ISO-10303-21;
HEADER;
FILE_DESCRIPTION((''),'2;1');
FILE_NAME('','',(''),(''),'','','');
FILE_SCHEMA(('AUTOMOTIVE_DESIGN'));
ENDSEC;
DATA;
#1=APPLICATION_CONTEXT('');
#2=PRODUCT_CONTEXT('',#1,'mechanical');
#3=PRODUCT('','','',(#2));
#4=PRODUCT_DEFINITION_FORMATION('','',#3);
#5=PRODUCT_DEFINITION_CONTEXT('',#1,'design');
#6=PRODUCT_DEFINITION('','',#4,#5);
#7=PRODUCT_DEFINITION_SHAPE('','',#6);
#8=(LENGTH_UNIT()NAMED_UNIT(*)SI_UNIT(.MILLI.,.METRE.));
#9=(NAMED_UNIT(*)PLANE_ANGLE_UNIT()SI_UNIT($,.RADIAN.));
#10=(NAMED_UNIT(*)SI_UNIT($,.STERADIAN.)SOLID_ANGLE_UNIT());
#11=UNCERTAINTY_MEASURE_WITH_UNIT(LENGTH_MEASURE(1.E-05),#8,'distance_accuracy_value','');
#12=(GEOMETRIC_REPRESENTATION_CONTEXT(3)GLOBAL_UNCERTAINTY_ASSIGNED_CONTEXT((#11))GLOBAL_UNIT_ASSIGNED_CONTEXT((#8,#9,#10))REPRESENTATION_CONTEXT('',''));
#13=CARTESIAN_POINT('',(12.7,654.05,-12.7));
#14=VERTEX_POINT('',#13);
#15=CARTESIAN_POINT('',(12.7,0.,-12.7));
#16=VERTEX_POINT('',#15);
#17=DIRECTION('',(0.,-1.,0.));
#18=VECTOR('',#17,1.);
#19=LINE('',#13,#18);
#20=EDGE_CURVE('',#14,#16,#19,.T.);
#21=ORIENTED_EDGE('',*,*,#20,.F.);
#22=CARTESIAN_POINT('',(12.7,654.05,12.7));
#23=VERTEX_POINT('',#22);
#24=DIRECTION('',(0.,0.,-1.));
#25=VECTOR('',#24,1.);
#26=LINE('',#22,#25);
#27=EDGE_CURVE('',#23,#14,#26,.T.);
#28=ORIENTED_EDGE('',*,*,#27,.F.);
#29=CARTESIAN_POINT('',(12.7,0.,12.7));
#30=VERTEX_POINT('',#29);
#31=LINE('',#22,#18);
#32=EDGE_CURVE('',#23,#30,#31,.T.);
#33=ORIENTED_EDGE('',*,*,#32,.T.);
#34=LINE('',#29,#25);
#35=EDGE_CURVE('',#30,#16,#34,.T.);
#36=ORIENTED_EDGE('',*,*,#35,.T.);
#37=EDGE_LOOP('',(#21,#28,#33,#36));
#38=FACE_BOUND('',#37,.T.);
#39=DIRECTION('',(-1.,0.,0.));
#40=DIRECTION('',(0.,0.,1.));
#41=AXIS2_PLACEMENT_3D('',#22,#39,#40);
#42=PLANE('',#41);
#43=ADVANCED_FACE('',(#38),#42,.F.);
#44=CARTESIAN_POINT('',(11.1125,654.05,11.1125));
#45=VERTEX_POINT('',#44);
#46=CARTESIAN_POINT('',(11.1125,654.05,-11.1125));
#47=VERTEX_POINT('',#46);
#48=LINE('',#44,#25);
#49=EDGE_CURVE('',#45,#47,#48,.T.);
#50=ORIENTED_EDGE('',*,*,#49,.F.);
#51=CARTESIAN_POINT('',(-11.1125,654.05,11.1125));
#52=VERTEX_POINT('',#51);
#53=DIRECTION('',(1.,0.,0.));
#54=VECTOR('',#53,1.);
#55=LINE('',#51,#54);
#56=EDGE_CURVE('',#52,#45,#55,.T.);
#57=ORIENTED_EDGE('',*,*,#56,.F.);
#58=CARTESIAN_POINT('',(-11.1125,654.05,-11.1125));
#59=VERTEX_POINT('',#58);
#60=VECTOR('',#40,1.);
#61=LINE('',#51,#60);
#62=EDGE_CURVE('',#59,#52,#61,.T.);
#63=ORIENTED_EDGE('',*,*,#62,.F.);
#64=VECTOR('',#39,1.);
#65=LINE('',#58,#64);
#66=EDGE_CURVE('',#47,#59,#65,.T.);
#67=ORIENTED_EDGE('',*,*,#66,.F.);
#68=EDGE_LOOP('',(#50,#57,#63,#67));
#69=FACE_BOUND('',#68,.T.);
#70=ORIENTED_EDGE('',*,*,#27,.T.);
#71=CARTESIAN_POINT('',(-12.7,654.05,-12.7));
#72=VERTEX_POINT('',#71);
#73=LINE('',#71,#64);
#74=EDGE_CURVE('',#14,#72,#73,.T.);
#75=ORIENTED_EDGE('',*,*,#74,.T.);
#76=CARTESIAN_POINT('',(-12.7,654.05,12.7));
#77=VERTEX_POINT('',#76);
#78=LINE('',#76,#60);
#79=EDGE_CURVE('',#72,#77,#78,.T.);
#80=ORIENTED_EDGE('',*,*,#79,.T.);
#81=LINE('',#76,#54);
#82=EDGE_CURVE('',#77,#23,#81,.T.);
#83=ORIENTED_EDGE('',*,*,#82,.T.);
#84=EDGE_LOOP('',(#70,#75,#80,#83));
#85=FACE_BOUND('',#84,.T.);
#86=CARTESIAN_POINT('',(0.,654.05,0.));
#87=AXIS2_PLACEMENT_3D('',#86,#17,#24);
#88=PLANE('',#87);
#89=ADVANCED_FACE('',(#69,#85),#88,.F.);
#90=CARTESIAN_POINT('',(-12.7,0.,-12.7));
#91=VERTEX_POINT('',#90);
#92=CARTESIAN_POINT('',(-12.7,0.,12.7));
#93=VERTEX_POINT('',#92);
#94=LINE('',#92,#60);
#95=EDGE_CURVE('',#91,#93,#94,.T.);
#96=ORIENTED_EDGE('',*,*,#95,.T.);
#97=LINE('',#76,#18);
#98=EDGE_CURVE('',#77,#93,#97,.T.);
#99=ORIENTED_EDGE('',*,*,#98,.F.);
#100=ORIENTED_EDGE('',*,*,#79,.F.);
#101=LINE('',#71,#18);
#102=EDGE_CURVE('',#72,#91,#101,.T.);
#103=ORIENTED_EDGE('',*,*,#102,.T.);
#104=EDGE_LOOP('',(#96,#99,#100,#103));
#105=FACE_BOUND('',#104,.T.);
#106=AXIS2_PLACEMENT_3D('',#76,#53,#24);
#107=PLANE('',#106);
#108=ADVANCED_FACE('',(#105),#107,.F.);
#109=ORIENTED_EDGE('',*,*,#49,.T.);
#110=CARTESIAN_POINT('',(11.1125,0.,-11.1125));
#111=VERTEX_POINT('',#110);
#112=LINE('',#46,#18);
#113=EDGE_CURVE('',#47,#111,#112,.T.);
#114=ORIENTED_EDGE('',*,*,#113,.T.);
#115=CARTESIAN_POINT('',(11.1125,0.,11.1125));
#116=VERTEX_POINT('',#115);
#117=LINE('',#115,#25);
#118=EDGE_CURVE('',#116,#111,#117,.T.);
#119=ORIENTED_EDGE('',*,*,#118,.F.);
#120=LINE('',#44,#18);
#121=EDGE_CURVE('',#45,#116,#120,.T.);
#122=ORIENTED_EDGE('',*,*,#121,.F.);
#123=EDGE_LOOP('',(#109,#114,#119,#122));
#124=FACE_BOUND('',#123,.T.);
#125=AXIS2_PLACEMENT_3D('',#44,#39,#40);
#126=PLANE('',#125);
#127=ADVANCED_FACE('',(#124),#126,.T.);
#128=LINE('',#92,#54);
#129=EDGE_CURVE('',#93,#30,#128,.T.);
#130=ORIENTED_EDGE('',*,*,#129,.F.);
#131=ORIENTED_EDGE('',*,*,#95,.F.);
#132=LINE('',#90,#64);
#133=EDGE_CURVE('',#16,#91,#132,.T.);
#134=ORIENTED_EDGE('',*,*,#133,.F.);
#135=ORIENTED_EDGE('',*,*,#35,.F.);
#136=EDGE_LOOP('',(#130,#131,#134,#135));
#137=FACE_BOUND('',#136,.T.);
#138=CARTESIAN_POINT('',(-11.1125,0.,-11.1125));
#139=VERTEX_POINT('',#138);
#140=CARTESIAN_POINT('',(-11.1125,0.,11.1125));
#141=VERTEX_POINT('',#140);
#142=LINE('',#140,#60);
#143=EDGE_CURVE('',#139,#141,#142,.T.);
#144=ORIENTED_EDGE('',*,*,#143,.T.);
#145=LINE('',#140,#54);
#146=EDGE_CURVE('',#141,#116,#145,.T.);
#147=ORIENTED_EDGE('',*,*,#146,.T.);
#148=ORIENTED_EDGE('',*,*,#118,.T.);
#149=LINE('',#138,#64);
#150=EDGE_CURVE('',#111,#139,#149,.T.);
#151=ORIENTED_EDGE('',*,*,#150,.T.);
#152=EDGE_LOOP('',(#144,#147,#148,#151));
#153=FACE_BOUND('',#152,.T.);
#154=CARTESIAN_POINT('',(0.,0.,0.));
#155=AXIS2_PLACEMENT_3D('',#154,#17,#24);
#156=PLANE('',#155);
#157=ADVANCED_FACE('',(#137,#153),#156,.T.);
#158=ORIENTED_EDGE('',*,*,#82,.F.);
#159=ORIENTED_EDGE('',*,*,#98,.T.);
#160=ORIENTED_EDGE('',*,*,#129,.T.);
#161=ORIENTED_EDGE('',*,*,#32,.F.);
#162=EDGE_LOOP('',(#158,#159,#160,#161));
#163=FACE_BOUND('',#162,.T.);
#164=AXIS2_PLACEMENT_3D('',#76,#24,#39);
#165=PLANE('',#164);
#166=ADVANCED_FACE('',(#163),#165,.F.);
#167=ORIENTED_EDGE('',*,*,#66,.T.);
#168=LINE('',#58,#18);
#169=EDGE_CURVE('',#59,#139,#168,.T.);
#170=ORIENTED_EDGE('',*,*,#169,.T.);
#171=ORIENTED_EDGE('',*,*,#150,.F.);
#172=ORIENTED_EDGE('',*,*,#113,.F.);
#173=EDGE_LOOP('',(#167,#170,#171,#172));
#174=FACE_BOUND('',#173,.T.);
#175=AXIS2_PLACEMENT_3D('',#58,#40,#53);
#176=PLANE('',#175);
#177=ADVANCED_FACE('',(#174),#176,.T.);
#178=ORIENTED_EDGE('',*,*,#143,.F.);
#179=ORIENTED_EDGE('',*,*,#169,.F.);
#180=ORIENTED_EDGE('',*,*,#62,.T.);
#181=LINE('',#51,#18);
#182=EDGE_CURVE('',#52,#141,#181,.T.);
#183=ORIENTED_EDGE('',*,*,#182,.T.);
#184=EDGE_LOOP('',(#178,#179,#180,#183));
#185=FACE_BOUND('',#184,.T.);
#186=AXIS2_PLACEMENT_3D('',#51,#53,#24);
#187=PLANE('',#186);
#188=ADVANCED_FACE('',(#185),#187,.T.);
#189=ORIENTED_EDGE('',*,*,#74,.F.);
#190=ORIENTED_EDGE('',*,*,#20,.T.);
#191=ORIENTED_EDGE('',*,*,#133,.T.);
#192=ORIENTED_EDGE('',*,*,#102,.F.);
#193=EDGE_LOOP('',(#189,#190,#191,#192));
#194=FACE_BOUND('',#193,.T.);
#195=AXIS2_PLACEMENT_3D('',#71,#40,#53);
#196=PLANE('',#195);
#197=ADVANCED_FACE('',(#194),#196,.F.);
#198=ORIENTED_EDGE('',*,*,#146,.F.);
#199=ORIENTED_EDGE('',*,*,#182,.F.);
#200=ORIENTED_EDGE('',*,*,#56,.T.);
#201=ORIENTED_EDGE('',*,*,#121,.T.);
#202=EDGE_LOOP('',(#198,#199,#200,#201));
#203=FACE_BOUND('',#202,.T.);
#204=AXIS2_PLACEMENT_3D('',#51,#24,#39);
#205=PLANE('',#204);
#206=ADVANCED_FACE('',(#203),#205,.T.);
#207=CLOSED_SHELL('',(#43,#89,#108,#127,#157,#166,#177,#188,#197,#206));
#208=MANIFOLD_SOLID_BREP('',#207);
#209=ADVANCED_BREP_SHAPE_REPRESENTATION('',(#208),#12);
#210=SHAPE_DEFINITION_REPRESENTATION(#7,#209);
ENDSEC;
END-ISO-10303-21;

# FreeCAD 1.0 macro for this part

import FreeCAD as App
import Part
import Sketcher
from FreeCAD import Vector
Q = App.Units.Quantity


def add_polygon(sketch, points):
    """Adds a closed chain of lines whose ends are joined by coincident constraints."""
    first, n = sketch.GeometryCount, len(points)
    for a, b in zip(points, points[1:] + points[:1]):
        sketch.addGeometry(Part.LineSegment(App.Vector(*a, 0), App.Vector(*b, 0)), False)
    for i in range(n):
        sketch.addConstraint(Sketcher.Constraint("Coincident", first + i, 2, first + (i + 1) % n, 1))

doc = App.newDocument("Part")
body = doc.addObject("PartDesign::Body", "Body")

sketch1 = body.newObject("Sketcher::SketchObject", "Sketch")
sketch1.AttachmentSupport = (doc.getObject("XZ_Plane"), [""])
sketch1.MapMode = "FlatFace"
add_polygon(sketch1, [(-13, -13), (-13, 13), (13, 13), (13, -13)])
add_polygon(sketch1, [(11, 11), (-11, 11), (-11, -11), (11, -11)])
sketch1.addConstraint(Sketcher.Constraint("Vertical", 0))
sketch1.addConstraint(Sketcher.Constraint("Horizontal", 1))
sketch1.addConstraint(Sketcher.Constraint("Vertical", 2))
sketch1.addConstraint(Sketcher.Constraint("Horizontal", 3))
sketch1.addConstraint(Sketcher.Constraint("Horizontal", 4))
sketch1.addConstraint(Sketcher.Constraint("Vertical", 5))
sketch1.addConstraint(Sketcher.Constraint("Horizontal", 6))
sketch1.addConstraint(Sketcher.Constraint("Vertical", 7))
sketch1.addConstraint(Sketcher.Constraint("Symmetric", 0, 2, 2, 2, -1, 1))
sketch1.addConstraint(Sketcher.Constraint("Symmetric", 4, 2, 6, 2, -1, 1))
sketch1.addConstraint(Sketcher.Constraint("Equal", 3, 0))
sketch1.addConstraint(Sketcher.Constraint("Equal", 6, 5))
sketch1.addConstraint(Sketcher.Constraint("DistanceX", 1, 1, 1, 2, Q("1 in")))
sketch1.addConstraint(Sketcher.Constraint("DistanceX", 4, 2, 4, 1, Q("0.875 in")))
pad1 = body.newObject("PartDesign::Pad", "Pad")
pad1.Profile = sketch1
pad1.Length = Q("25.75 in")
pad1.Reversed = True

doc.recompute()
